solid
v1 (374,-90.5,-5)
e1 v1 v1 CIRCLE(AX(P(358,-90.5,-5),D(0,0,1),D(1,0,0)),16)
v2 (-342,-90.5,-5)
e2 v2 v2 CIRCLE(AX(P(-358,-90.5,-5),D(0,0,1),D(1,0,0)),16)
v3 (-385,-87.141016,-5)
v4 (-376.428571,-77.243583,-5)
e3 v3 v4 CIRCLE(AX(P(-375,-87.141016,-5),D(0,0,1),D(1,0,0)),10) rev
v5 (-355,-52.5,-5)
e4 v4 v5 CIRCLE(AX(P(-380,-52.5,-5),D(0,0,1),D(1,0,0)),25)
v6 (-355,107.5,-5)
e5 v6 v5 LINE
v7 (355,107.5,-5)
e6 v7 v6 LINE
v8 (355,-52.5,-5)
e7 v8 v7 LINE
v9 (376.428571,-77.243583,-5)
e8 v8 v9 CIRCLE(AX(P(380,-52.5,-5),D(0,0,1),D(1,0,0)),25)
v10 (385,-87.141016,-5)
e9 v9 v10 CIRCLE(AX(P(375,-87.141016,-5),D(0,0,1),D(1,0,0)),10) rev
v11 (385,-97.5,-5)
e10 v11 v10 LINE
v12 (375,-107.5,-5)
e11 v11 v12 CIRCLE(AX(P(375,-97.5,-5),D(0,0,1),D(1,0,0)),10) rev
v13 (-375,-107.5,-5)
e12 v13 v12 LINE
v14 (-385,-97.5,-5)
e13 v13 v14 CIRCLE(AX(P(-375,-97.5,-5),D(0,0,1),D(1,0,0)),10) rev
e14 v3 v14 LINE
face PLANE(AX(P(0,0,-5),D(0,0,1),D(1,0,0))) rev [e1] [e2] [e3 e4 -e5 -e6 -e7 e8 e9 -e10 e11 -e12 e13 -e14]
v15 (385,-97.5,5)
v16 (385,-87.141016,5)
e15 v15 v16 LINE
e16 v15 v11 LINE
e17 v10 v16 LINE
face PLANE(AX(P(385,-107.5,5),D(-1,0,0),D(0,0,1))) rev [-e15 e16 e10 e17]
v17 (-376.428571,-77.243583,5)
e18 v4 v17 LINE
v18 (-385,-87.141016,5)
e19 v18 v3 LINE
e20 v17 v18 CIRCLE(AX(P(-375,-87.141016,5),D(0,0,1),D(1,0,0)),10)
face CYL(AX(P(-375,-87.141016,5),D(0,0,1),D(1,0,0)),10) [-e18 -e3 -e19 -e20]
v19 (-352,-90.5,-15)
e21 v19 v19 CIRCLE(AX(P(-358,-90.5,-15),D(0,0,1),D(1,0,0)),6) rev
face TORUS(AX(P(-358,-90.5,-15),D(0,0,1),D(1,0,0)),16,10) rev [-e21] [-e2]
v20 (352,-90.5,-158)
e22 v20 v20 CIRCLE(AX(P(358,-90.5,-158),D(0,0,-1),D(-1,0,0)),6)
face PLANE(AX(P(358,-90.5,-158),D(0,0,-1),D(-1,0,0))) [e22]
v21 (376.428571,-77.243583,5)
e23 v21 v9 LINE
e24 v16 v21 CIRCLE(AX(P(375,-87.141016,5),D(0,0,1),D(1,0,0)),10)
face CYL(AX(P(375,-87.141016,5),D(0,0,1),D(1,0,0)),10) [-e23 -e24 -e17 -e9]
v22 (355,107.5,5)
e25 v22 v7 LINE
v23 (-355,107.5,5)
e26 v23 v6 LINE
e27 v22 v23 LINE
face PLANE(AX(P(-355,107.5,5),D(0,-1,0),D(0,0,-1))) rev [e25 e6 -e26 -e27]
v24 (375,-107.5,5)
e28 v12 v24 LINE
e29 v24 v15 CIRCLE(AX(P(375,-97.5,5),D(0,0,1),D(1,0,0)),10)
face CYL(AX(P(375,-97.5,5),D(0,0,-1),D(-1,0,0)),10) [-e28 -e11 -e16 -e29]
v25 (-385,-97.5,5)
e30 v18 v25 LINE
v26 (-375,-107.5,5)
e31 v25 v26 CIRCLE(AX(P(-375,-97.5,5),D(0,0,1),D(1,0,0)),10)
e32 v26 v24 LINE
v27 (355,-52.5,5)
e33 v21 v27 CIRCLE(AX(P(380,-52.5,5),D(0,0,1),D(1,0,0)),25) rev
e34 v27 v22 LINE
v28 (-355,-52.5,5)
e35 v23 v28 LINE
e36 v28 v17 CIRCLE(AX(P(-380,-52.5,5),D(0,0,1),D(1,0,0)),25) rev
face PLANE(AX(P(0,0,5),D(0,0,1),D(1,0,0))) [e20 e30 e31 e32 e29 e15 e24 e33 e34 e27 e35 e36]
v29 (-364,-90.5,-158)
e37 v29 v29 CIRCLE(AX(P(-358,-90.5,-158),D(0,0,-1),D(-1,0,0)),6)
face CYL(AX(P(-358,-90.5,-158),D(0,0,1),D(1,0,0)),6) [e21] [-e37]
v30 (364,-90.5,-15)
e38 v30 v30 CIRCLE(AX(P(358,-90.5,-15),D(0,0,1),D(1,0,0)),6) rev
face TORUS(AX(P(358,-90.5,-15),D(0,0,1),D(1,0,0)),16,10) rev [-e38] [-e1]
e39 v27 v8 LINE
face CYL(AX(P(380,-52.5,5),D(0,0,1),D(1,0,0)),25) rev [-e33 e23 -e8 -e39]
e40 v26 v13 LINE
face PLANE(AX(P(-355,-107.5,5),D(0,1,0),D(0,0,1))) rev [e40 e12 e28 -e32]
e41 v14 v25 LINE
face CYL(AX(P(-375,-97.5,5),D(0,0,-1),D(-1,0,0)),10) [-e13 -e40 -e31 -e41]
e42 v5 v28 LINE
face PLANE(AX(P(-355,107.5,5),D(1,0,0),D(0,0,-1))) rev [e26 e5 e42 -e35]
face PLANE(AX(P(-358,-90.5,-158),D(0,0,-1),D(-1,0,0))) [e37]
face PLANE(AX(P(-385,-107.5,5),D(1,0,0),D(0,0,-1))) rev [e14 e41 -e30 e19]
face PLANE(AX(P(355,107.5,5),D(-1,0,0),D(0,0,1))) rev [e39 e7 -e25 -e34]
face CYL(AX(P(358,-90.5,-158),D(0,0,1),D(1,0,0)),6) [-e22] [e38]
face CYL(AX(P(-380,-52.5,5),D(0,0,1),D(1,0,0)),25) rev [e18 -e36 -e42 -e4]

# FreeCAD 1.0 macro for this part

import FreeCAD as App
import Part
import Sketcher
Q = App.Units.Quantity


def edges_at(feature, points):
    """Names of the edges that pass closest to the given points."""
    edges = feature.Shape.Edges
    near = lambda p: min(range(len(edges)), key=lambda i: edges[i].distToShape(Part.Vertex(*p))[0])
    return sorted({f"Edge{near(p) + 1}" for p in points})

doc = App.newDocument("Part")
body = doc.addObject("PartDesign::Body", "Body")

# Sketch on XY plane
sketch1 = body.newObject("Sketcher::SketchObject", "Sketch")
sketch1.AttachmentSupport = (doc.getObject("XY_Plane"), [""])
sketch1.MapMode = "FlatFace"
sketch1.addGeometry([
    Part.LineSegment(App.Vector(-385, -107.5, 0), App.Vector(385, -107.5, 0)),  # 0
    Part.LineSegment(App.Vector(385, -107.5, 0), App.Vector(385, -77.5, 0)),  # 1
    Part.LineSegment(App.Vector(385, -77.5, 0), App.Vector(355, -77.5, 0)),  # 2
    Part.LineSegment(App.Vector(355, -77.5, 0), App.Vector(355, 107.5, 0)),  # 3
    Part.LineSegment(App.Vector(355, 107.5, 0), App.Vector(-355, 107.5, 0)),  # 4
    Part.LineSegment(App.Vector(-355, 107.5, 0), App.Vector(-355, -77.5, 0)),  # 5
    Part.LineSegment(App.Vector(-355, -77.5, 0), App.Vector(-385, -77.5, 0)),  # 6
    Part.LineSegment(App.Vector(-385, -77.5, 0), App.Vector(-385, -107.5, 0)),  # 7
], False)
sketch1.addConstraint([
    Sketcher.Constraint("Coincident", 0, 2, 1, 1),
    Sketcher.Constraint("Coincident", 1, 2, 2, 1),
    Sketcher.Constraint("Coincident", 2, 2, 3, 1),
    Sketcher.Constraint("Coincident", 3, 2, 4, 1),
    Sketcher.Constraint("Coincident", 4, 2, 5, 1),
    Sketcher.Constraint("Coincident", 5, 2, 6, 1),
    Sketcher.Constraint("Coincident", 6, 2, 7, 1),
    Sketcher.Constraint("Coincident", 7, 2, 0, 1),
    Sketcher.Constraint("Horizontal", 0),
    Sketcher.Constraint("Vertical", 1),
    Sketcher.Constraint("Horizontal", 2),
    Sketcher.Constraint("Vertical", 3),
    Sketcher.Constraint("Horizontal", 4),
    Sketcher.Constraint("Vertical", 5),
    Sketcher.Constraint("Horizontal", 6),
    Sketcher.Constraint("Vertical", 7),
    Sketcher.Constraint("Symmetric", 2, 2, 5, 2, -2),
    Sketcher.Constraint("Equal", 2, 6),
    Sketcher.Constraint("Equal", 6, 1),
    Sketcher.Constraint("DistanceX", 0, 1, 0, 2, Q("770 mm")),
    Sketcher.Constraint("DistanceX", 2, 2, 2, 1, Q("30 mm")),
    Sketcher.Constraint("DistanceY", 3, 1, 3, 2, Q("185 mm")),
    Sketcher.Constraint("DistanceY", 0, 2, -1, 1, Q("107.5 mm")),
])
pad1 = body.newObject("PartDesign::Pad", "Pad")
pad1.Profile = sketch1
pad1.Length = 10
pad1.Midplane = True
doc.recompute()

fillet = body.newObject("PartDesign::Fillet", "Fillet")
fillet.Base = (pad1, edges_at(pad1, [(-355, -77.5, 0), (355, -77.5, 0)]))
fillet.Radius = 25

# Sketch on XY plane
sketch2 = body.newObject("Sketcher::SketchObject", "Sketch001")
sketch2.AttachmentSupport = (doc.getObject("XY_Plane"), [""])
sketch2.MapMode = "FlatFace"
sketch2.AttachmentOffset = App.Placement(App.Vector(0, 0, -5), App.Rotation())
sketch2.addGeometry([
    Part.Circle(App.Vector(358, -90.5, 0), App.Vector(0, 0, 1), 6),
    Part.Circle(App.Vector(-358, -90.5, 0), App.Vector(0, 0, 1), 6),
], False)
sketch2.addConstraint([
    Sketcher.Constraint("Equal", 0, 1),
    Sketcher.Constraint("Symmetric", 0, 3, 1, 3, -2),
    Sketcher.Constraint("Diameter", 0, Q("12 mm")),
    Sketcher.Constraint("DistanceX", -1, 1, 0, 3, Q("358 mm")),
    Sketcher.Constraint("DistanceY", 0, 3, -1, 1, Q("90.5 mm")),
])
pad2 = body.newObject("PartDesign::Pad", "Pad001")
pad2.Profile = sketch2
pad2.Length = 153
pad2.Reversed = True
doc.recompute()

fillet2 = body.newObject("PartDesign::Fillet", "Fillet001")
fillet2.Base = (pad2, edges_at(pad2, [
    (-385, -107.5, 0),
    (385, -107.5, 0),
    (352, -90.5, -5),
    (-364, -90.5, -5),
]))
fillet2.Radius = 10
doc.recompute()

fillet3 = body.newObject("PartDesign::Fillet", "Fillet002")
fillet3.Base = (fillet2, edges_at(fillet2, [(-385, -77.5, 0), (385, -77.5, 0)]))
fillet3.Radius = 10

doc.recompute()
